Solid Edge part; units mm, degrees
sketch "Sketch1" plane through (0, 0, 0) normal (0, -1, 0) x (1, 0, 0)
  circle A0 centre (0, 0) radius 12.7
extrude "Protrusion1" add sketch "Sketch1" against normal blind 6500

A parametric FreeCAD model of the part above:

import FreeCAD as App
import Part
import Sketcher

V = App.Vector
Q = App.Units.Quantity

doc = App.newDocument("Part")
params = doc.addObject("Spreadsheet::Sheet", "Params")
for row, (alias, value) in enumerate([
    ("sketch1_diameter", "1 in"),
    ("pad1_length", "255.9055118 in"),
], start=1):
    params.set(f"A{row}", alias)
    params.set(f"B{row}", "=" + value)
    params.setAlias(f"B{row}", alias)

body = doc.addObject("PartDesign::Body", "Body")

sketch1 = body.newObject("Sketcher::SketchObject", "Sketch")
sketch1.AttachmentSupport = (doc.getObject("XZ_Plane"), [""])
sketch1.MapMode = "FlatFace"
sketch1.addGeometry(Part.Circle(V(0, 0, 0), V(0, 0, 1), 13), False)
sketch1.addConstraint(Sketcher.Constraint("Coincident", 0, 3, -1, 1))
sketch1.addConstraint(Sketcher.Constraint("Diameter", 0, Q("1 in")))
sketch1.setExpression("Constraints[1]", "Params.sketch1_diameter")
pad1 = body.newObject("PartDesign::Pad", "Pad")
pad1.Profile = sketch1
pad1.setExpression("Length", "Params.pad1_length")
pad1.Reversed = True

doc.recompute()
